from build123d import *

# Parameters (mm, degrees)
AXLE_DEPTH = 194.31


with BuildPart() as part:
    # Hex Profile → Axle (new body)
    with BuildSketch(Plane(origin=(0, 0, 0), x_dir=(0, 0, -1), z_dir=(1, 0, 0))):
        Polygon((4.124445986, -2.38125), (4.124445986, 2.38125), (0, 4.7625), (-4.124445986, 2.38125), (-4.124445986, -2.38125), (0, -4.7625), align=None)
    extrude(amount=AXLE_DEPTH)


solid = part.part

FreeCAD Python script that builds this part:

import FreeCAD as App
import Part
import Sketcher
Q = App.Units.Quantity


def add_polygon(sketch, points):
    """Adds a closed chain of lines whose ends are joined by coincident constraints."""
    first, n = sketch.GeometryCount, len(points)
    for a, b in zip(points, points[1:] + points[:1]):
        sketch.addGeometry(Part.LineSegment(App.Vector(*a, 0), App.Vector(*b, 0)), False)
    for i in range(n):
        sketch.addConstraint(Sketcher.Constraint("Coincident", first + i, 2, first + (i + 1) % n, 1))

doc = App.newDocument("Part")
body = doc.addObject("PartDesign::Body", "Body")

# Sketch on YZ plane
sketch1 = body.newObject("Sketcher::SketchObject", "Sketch")
sketch1.AttachmentSupport = (doc.getObject("YZ_Plane"), [""])
sketch1.MapMode = "FlatFace"
add_polygon(sketch1, [(-2.4, -4.1), (2.4, -4.1), (4.8, 0), (2.4, 4.1), (-2.4, 4.1), (-4.8, 0)])  # lines 0-5
sketch1.addConstraint(Sketcher.Constraint("Horizontal", 0))
sketch1.addConstraint(Sketcher.Constraint("Horizontal", 3))
sketch1.addConstraint(Sketcher.Constraint("Symmetric", 0, 2, 3, 2, -1, 1))
sketch1.addConstraint(Sketcher.Constraint("Symmetric", 1, 2, 4, 2, -1, 1))
sketch1.addConstraint(Sketcher.Constraint("PointOnObject", 1, 2, -1))
sketch1.addConstraint(Sketcher.Constraint("Parallel", 2, 5))
sketch1.addConstraint(Sketcher.Constraint("Vertical", 0, 2, 2, 2))
sketch1.addConstraint(Sketcher.Constraint("Angle", 1, Q("60 deg")))
sketch1.addConstraint(Sketcher.Constraint("DistanceX", 0, 1, 0, 2, Q("0.1875 in")))
sketch1.addConstraint(Sketcher.Constraint("Distance", 1, Q("0.1875 in")))
pad1 = body.newObject("PartDesign::Pad", "Pad")
pad1.Profile = sketch1
pad1.Length = Q("7.65 in")

doc.recompute()
